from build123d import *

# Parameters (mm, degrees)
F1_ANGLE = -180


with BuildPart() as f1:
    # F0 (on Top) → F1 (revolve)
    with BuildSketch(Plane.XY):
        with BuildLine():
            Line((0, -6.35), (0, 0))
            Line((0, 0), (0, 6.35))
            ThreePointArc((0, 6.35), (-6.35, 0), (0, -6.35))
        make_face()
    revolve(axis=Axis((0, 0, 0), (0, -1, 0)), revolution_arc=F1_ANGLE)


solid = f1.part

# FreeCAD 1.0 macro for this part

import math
import FreeCAD as App
import Part
import Sketcher
Q = App.Units.Quantity

doc = App.newDocument("Part")
body = doc.addObject("PartDesign::Body", "Body")

# Sketch on XY plane
sketch1 = body.newObject("Sketcher::SketchObject", "Sketch")
sketch1.AttachmentSupport = (doc.getObject("XY_Plane"), [""])
sketch1.MapMode = "FlatFace"
sketch1.addGeometry([
    Part.LineSegment(App.Vector(0, -6.35, 0), App.Vector(0, 6.35, 0)),
    Part.ArcOfCircle(Part.Circle(App.Vector(0, 0, 0), App.Vector(0, 0, 1), 6.35), math.radians(90), math.radians(270)),
], False)
sketch1.addConstraint([
    Sketcher.Constraint("Coincident", 0, 1, 1, 2),
    Sketcher.Constraint("Coincident", 1, 1, 0, 2),
    Sketcher.Constraint("Vertical", 0),
    Sketcher.Constraint("Coincident", 1, 3, -1, 1),
    Sketcher.Constraint("PointOnObject", 0, 1, -2),
    Sketcher.Constraint("Radius", 1, Q("0.25 in")),
])
revolution = body.newObject("PartDesign::Revolution", "Revolution")
revolution.Profile = sketch1
revolution.ReferenceAxis = (sketch1, ["V_Axis"])
revolution.Angle = 180

doc.recompute()
